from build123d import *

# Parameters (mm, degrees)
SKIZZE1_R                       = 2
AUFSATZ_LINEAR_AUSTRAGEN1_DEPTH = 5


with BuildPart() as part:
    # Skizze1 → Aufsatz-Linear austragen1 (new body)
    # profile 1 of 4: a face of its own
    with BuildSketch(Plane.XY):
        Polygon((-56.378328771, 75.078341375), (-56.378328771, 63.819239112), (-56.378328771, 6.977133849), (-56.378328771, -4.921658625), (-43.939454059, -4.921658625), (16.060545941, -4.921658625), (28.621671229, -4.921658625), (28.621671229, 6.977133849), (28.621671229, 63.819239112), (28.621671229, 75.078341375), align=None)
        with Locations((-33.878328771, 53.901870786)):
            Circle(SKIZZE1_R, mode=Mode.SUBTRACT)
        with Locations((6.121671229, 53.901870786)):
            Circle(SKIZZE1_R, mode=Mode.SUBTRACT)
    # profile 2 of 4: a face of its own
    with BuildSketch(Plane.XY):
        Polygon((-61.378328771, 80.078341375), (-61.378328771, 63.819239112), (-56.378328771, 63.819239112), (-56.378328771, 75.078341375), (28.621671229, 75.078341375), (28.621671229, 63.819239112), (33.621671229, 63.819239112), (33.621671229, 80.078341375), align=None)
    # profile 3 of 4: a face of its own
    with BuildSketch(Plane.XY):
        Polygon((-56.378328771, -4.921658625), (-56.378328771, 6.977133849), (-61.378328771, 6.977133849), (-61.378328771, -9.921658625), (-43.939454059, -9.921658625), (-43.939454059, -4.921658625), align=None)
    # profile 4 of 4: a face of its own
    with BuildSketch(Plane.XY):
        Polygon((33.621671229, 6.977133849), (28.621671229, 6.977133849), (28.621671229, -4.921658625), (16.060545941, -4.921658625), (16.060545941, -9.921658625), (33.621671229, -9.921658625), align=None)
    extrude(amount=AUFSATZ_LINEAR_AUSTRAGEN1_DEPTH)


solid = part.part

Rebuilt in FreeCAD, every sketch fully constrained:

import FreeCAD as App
import Part
import Sketcher

V = App.Vector

doc = App.newDocument("Part")
body = doc.addObject("PartDesign::Body", "Body")

# Sketch on XY plane
sketch1 = body.newObject("Sketcher::SketchObject", "Sketch")
sketch1.AttachmentSupport = (doc.getObject("XY_Plane"), [""])
sketch1.MapMode = "FlatFace"
sketch1.addGeometry([
    Part.LineSegment(V(-56.4, 63.8, 0), V(-56.4, 7, 0)),  # 0
    Part.LineSegment(V(-56.4, 7, 0), V(-61.4, 7, 0)),  # 1
    Part.LineSegment(V(-61.4, 7, 0), V(-61.4, -9.9, 0)),  # 2
    Part.LineSegment(V(-61.4, -9.9, 0), V(-43.9, -9.9, 0)),  # 3
    Part.LineSegment(V(-43.9, -9.9, 0), V(-43.9, -4.9, 0)),  # 4
    Part.LineSegment(V(-43.9, -4.9, 0), V(16.1, -4.9, 0)),  # 5
    Part.LineSegment(V(16.1, -4.9, 0), V(16.1, -9.9, 0)),  # 6
    Part.LineSegment(V(16.1, -9.9, 0), V(33.6, -9.9, 0)),  # 7
    Part.LineSegment(V(33.6, -9.9, 0), V(33.6, 7, 0)),  # 8
    Part.LineSegment(V(33.6, 7, 0), V(28.6, 7, 0)),  # 9
    Part.LineSegment(V(28.6, 7, 0), V(28.6, 63.8, 0)),  # 10
    Part.LineSegment(V(28.6, 63.8, 0), V(33.6, 63.8, 0)),  # 11
    Part.LineSegment(V(33.6, 63.8, 0), V(33.6, 80.1, 0)),  # 12
    Part.LineSegment(V(33.6, 80.1, 0), V(-61.4, 80.1, 0)),  # 13
    Part.LineSegment(V(-61.4, 80.1, 0), V(-61.4, 63.8, 0)),  # 14
    Part.LineSegment(V(-61.4, 63.8, 0), V(-56.4, 63.8, 0)),  # 15
    Part.Circle(V(-33.9, 53.9, 0), V(0, 0, 1), 2),  # 16
    Part.Circle(V(6.1, 53.9, 0), V(0, 0, 1), 2),  # 17
], False)
sketch1.addConstraint([
    Sketcher.Constraint("Coincident", 0, 2, 1, 1),
    Sketcher.Constraint("Coincident", 1, 2, 2, 1),
    Sketcher.Constraint("Coincident", 2, 2, 3, 1),
    Sketcher.Constraint("Coincident", 3, 2, 4, 1),
    Sketcher.Constraint("Coincident", 4, 2, 5, 1),
    Sketcher.Constraint("Coincident", 5, 2, 6, 1),
    Sketcher.Constraint("Coincident", 6, 2, 7, 1),
    Sketcher.Constraint("Coincident", 7, 2, 8, 1),
    Sketcher.Constraint("Coincident", 8, 2, 9, 1),
    Sketcher.Constraint("Coincident", 9, 2, 10, 1),
    Sketcher.Constraint("Coincident", 10, 2, 11, 1),
    Sketcher.Constraint("Coincident", 11, 2, 12, 1),
    Sketcher.Constraint("Coincident", 12, 2, 13, 1),
    Sketcher.Constraint("Coincident", 13, 2, 14, 1),
    Sketcher.Constraint("Coincident", 14, 2, 15, 1),
    Sketcher.Constraint("Coincident", 15, 2, 0, 1),
    Sketcher.Constraint("Vertical", 0),
    Sketcher.Constraint("Horizontal", 1),
    Sketcher.Constraint("Vertical", 2),
    Sketcher.Constraint("Horizontal", 3),
    Sketcher.Constraint("Vertical", 4),
    Sketcher.Constraint("Horizontal", 5),
    Sketcher.Constraint("Vertical", 6),
    Sketcher.Constraint("Horizontal", 7),
    Sketcher.Constraint("Vertical", 8),
    Sketcher.Constraint("Horizontal", 9),
    Sketcher.Constraint("Vertical", 10),
    Sketcher.Constraint("Horizontal", 11),
    Sketcher.Constraint("Vertical", 12),
    Sketcher.Constraint("Horizontal", 13),
    Sketcher.Constraint("Vertical", 14),
    Sketcher.Constraint("Horizontal", 15),
    Sketcher.Constraint("Equal", 16, 17),
    Sketcher.Constraint("Horizontal", 16, 3, 17, 3),
    Sketcher.Constraint("Horizontal", 3, 2, 6, 2),
    Sketcher.Constraint("Horizontal", 1, 2, 8, 2),
    Sketcher.Constraint("Horizontal", 11, 2, 14, 2),
    Sketcher.Constraint("Vertical", 8, 2, 11, 2),
    Sketcher.Constraint("Vertical", 2, 2, 13, 2),
    Sketcher.Constraint("Equal", 1, 9),
    Sketcher.Constraint("Equal", 15, 4),
    Sketcher.Constraint("Diameter", 16, 4.0),
    Sketcher.Constraint("DistanceX", 1, 2, 1, 1, 5.0),
    Sketcher.Constraint("DistanceX", 5, 1, 5, 2, 60.0),
    Sketcher.Constraint("DistanceX", 13, 2, 13, 1, 95.0),
    Sketcher.Constraint("DistanceX", 16, 3, 17, 3, 40.0),
    Sketcher.Constraint("DistanceY", 4, 2, 13, 2, 85.0),
    Sketcher.Constraint("DistanceX", 0, 2, 16, 3, 22.5),
    Sketcher.Constraint("DistanceX", 3, 1, 3, 2, 17.438875),
    Sketcher.Constraint("DistanceY", 0, 2, 0, 1, 56.842105),
    Sketcher.Constraint("DistanceY", 2, 2, 2, 1, 16.898792),
    Sketcher.Constraint("DistanceX", 16, 3, -1, 1, 33.878329),
    Sketcher.Constraint("DistanceY", -1, 1, 16, 3, 53.901871),
    Sketcher.Constraint("DistanceY", 2, 2, -1, 1, 9.921659),
])
pad1 = body.newObject("PartDesign::Pad", "Pad")
pad1.Profile = sketch1
pad1.Length = 5

doc.recompute()
